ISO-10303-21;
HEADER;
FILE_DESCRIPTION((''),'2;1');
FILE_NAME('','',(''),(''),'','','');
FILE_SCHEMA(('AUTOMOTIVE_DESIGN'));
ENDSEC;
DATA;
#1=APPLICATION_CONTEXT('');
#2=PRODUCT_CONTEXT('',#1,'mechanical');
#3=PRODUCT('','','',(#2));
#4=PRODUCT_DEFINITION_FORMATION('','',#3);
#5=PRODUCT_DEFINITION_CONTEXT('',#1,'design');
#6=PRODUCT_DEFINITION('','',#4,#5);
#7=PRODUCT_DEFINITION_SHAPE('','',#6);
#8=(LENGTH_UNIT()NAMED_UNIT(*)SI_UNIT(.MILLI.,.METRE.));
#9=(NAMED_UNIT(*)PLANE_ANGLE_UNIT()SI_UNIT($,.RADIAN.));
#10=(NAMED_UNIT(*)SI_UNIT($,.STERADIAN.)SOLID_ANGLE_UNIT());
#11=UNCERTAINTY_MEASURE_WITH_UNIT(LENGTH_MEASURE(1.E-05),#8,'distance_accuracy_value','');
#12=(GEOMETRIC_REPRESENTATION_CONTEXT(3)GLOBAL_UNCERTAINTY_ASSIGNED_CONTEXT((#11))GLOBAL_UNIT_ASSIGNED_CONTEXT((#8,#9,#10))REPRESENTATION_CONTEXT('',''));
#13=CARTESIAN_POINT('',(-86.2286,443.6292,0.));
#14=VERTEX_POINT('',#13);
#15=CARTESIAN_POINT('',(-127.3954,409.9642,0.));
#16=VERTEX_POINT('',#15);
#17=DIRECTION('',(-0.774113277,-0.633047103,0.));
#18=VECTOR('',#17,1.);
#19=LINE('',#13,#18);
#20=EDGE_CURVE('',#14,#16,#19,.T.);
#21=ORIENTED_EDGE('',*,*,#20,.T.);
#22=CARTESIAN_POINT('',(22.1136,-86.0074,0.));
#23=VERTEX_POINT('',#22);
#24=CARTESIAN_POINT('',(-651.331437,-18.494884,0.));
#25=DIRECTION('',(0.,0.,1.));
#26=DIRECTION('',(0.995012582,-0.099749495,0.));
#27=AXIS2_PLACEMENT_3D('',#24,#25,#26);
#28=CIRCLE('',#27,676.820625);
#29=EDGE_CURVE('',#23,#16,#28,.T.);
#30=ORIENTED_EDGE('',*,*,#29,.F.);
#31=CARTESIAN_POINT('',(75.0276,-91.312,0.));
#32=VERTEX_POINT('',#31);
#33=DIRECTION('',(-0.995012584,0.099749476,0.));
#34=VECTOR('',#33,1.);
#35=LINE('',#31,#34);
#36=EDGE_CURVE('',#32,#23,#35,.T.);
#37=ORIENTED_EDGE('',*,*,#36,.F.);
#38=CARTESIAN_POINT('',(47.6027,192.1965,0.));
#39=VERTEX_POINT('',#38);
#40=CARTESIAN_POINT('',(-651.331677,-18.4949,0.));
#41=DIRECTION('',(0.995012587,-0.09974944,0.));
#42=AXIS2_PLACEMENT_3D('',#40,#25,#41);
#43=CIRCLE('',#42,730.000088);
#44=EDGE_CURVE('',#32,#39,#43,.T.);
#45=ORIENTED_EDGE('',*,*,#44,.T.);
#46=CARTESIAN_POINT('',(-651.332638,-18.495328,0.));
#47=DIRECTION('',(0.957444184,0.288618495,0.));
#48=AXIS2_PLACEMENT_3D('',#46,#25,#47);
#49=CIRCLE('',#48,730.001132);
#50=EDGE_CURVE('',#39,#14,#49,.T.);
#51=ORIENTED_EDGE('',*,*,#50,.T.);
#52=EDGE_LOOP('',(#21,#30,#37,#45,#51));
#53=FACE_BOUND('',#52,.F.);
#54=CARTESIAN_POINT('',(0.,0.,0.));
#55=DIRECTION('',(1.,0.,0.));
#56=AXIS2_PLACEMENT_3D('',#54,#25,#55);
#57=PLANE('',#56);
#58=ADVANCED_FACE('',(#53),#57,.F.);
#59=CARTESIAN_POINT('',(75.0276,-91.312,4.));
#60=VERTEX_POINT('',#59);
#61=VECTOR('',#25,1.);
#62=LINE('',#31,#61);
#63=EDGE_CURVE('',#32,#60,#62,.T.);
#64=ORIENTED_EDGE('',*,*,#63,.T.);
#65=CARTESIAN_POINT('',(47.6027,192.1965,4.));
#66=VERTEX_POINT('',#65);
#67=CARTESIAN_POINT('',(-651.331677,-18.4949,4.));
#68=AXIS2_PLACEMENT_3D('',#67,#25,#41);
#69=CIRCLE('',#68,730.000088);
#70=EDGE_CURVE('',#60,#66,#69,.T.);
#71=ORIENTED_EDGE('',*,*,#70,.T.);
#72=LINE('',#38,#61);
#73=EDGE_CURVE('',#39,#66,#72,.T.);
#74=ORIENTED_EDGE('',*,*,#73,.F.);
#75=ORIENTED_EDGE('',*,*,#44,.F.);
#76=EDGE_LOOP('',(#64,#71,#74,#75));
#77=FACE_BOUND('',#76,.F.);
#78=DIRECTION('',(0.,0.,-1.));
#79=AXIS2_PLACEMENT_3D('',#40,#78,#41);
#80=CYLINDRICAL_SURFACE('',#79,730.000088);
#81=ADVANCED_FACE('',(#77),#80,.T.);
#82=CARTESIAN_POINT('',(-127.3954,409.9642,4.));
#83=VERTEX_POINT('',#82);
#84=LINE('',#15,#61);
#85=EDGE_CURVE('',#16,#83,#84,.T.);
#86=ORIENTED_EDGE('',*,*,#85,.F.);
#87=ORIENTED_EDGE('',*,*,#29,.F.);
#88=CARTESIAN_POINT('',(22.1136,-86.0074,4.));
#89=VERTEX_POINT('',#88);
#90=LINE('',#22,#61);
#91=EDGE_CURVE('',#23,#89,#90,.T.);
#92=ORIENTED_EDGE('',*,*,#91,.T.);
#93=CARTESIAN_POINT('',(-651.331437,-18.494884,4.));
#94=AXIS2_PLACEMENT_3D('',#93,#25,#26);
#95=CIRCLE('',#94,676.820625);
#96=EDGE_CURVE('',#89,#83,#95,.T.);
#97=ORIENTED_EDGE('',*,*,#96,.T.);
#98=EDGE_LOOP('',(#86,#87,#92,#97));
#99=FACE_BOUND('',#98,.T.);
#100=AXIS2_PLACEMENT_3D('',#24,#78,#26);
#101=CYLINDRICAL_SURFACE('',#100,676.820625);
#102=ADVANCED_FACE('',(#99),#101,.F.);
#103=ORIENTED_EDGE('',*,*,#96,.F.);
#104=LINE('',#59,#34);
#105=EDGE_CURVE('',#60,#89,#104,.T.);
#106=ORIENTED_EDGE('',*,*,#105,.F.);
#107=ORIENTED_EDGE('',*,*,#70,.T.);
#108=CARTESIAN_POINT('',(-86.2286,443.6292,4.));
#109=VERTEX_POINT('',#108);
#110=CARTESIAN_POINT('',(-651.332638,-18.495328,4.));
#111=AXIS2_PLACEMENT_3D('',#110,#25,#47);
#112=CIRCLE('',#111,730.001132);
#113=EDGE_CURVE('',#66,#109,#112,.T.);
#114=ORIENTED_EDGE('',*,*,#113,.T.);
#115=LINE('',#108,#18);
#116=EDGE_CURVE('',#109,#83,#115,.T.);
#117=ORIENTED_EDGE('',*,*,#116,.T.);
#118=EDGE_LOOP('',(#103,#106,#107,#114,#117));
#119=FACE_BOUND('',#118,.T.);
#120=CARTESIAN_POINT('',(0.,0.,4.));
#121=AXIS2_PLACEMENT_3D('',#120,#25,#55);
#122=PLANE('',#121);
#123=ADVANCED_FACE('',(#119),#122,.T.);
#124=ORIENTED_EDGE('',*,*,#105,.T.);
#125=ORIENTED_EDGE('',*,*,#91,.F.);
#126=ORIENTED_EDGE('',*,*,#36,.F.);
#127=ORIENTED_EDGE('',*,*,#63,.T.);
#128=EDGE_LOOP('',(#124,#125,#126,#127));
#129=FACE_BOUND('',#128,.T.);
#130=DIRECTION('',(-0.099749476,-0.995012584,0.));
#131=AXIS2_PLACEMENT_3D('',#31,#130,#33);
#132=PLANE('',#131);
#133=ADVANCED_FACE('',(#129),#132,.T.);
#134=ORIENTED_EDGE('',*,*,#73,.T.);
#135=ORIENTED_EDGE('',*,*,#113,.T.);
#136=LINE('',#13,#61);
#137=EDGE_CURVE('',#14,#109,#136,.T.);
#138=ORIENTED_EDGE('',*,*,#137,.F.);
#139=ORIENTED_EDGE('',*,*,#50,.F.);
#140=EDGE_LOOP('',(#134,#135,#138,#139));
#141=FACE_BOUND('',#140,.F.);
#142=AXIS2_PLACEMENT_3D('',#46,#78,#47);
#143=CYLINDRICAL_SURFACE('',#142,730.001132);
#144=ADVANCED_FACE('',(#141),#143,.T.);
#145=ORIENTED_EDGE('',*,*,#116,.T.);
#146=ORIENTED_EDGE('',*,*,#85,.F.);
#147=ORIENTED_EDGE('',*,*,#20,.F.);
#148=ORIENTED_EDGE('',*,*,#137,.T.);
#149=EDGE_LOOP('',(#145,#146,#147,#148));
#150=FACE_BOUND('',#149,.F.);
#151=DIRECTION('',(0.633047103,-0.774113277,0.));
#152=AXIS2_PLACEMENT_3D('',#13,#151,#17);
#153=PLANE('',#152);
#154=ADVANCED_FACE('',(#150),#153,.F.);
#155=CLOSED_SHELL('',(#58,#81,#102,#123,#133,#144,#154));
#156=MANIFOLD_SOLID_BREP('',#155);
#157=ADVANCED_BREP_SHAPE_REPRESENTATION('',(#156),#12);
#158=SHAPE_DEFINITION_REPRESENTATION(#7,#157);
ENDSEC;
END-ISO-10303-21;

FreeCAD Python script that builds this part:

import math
import FreeCAD as App
import Part
import Sketcher
from FreeCAD import Vector
Q = App.Units.Quantity

doc = App.newDocument("Part")
body = doc.addObject("PartDesign::Body", "Body")

# Sketch on XY plane
sketch1 = body.newObject("Sketcher::SketchObject", "Sketch")
sketch1.AttachmentSupport = (doc.getObject("XY_Plane"), [""])
sketch1.MapMode = "FlatFace"
sketch1.addGeometry([
    Part.LineSegment(Vector(22, -86, 0), Vector(75, -91, 0)),  # 0
    Part.ArcOfCircle(Part.Circle(Vector(-651, -18, 0), Vector(0, 0, 1), 730), math.radians(-6), math.radians(17)),  # 1
    Part.ArcOfCircle(Part.Circle(Vector(-651, -18, 0), Vector(0, 0, 1), 730), math.radians(17), math.radians(39)),  # 2
    Part.LineSegment(Vector(-86, 444, 0), Vector(-127, 410, 0)),  # 3
    Part.ArcOfCircle(Part.Circle(Vector(-651, -18, 0), Vector(0, 0, 1), 677), math.radians(-6), math.radians(39)),  # 4
], False)
sketch1.addConstraint([
    Sketcher.Constraint("Coincident", 0, 2, 1, 1),
    Sketcher.Constraint("Coincident", 1, 2, 2, 1),
    Sketcher.Constraint("Coincident", 2, 2, 3, 1),
    Sketcher.Constraint("Coincident", 3, 2, 4, 2),
    Sketcher.Constraint("Coincident", 4, 1, 0, 1),
    Sketcher.Constraint("Coincident", 4, 3, 1, 3),
    Sketcher.Constraint("Equal", 0, 3),
    Sketcher.Constraint("Radius", 1, 730.0),
    Sketcher.Constraint("Radius", 2, 730.0011),
    Sketcher.Constraint("Radius", 4, 676.8208),
    Sketcher.Constraint("DistanceY", 1, 3, -1, 1, 18.495),
    Sketcher.Constraint("DistanceY", 0, 2, -1, 1, 91.312),
    Sketcher.Constraint("DistanceX", 1, 2, 0, 2, 27.425),
    Sketcher.Constraint("DistanceX", 3, 2, 1, 2, 174.998),
    Sketcher.Constraint("DistanceX", 1, 3, -1, 1, 651.3316),
    Sketcher.Constraint("Angle", 0, Q("-5.7247 deg")),
    Sketcher.Constraint("Angle", 3, Q("-140.7247 deg")),
])
pad1 = body.newObject("PartDesign::Pad", "Pad")
pad1.Profile = sketch1
pad1.Length = 4

doc.recompute()
